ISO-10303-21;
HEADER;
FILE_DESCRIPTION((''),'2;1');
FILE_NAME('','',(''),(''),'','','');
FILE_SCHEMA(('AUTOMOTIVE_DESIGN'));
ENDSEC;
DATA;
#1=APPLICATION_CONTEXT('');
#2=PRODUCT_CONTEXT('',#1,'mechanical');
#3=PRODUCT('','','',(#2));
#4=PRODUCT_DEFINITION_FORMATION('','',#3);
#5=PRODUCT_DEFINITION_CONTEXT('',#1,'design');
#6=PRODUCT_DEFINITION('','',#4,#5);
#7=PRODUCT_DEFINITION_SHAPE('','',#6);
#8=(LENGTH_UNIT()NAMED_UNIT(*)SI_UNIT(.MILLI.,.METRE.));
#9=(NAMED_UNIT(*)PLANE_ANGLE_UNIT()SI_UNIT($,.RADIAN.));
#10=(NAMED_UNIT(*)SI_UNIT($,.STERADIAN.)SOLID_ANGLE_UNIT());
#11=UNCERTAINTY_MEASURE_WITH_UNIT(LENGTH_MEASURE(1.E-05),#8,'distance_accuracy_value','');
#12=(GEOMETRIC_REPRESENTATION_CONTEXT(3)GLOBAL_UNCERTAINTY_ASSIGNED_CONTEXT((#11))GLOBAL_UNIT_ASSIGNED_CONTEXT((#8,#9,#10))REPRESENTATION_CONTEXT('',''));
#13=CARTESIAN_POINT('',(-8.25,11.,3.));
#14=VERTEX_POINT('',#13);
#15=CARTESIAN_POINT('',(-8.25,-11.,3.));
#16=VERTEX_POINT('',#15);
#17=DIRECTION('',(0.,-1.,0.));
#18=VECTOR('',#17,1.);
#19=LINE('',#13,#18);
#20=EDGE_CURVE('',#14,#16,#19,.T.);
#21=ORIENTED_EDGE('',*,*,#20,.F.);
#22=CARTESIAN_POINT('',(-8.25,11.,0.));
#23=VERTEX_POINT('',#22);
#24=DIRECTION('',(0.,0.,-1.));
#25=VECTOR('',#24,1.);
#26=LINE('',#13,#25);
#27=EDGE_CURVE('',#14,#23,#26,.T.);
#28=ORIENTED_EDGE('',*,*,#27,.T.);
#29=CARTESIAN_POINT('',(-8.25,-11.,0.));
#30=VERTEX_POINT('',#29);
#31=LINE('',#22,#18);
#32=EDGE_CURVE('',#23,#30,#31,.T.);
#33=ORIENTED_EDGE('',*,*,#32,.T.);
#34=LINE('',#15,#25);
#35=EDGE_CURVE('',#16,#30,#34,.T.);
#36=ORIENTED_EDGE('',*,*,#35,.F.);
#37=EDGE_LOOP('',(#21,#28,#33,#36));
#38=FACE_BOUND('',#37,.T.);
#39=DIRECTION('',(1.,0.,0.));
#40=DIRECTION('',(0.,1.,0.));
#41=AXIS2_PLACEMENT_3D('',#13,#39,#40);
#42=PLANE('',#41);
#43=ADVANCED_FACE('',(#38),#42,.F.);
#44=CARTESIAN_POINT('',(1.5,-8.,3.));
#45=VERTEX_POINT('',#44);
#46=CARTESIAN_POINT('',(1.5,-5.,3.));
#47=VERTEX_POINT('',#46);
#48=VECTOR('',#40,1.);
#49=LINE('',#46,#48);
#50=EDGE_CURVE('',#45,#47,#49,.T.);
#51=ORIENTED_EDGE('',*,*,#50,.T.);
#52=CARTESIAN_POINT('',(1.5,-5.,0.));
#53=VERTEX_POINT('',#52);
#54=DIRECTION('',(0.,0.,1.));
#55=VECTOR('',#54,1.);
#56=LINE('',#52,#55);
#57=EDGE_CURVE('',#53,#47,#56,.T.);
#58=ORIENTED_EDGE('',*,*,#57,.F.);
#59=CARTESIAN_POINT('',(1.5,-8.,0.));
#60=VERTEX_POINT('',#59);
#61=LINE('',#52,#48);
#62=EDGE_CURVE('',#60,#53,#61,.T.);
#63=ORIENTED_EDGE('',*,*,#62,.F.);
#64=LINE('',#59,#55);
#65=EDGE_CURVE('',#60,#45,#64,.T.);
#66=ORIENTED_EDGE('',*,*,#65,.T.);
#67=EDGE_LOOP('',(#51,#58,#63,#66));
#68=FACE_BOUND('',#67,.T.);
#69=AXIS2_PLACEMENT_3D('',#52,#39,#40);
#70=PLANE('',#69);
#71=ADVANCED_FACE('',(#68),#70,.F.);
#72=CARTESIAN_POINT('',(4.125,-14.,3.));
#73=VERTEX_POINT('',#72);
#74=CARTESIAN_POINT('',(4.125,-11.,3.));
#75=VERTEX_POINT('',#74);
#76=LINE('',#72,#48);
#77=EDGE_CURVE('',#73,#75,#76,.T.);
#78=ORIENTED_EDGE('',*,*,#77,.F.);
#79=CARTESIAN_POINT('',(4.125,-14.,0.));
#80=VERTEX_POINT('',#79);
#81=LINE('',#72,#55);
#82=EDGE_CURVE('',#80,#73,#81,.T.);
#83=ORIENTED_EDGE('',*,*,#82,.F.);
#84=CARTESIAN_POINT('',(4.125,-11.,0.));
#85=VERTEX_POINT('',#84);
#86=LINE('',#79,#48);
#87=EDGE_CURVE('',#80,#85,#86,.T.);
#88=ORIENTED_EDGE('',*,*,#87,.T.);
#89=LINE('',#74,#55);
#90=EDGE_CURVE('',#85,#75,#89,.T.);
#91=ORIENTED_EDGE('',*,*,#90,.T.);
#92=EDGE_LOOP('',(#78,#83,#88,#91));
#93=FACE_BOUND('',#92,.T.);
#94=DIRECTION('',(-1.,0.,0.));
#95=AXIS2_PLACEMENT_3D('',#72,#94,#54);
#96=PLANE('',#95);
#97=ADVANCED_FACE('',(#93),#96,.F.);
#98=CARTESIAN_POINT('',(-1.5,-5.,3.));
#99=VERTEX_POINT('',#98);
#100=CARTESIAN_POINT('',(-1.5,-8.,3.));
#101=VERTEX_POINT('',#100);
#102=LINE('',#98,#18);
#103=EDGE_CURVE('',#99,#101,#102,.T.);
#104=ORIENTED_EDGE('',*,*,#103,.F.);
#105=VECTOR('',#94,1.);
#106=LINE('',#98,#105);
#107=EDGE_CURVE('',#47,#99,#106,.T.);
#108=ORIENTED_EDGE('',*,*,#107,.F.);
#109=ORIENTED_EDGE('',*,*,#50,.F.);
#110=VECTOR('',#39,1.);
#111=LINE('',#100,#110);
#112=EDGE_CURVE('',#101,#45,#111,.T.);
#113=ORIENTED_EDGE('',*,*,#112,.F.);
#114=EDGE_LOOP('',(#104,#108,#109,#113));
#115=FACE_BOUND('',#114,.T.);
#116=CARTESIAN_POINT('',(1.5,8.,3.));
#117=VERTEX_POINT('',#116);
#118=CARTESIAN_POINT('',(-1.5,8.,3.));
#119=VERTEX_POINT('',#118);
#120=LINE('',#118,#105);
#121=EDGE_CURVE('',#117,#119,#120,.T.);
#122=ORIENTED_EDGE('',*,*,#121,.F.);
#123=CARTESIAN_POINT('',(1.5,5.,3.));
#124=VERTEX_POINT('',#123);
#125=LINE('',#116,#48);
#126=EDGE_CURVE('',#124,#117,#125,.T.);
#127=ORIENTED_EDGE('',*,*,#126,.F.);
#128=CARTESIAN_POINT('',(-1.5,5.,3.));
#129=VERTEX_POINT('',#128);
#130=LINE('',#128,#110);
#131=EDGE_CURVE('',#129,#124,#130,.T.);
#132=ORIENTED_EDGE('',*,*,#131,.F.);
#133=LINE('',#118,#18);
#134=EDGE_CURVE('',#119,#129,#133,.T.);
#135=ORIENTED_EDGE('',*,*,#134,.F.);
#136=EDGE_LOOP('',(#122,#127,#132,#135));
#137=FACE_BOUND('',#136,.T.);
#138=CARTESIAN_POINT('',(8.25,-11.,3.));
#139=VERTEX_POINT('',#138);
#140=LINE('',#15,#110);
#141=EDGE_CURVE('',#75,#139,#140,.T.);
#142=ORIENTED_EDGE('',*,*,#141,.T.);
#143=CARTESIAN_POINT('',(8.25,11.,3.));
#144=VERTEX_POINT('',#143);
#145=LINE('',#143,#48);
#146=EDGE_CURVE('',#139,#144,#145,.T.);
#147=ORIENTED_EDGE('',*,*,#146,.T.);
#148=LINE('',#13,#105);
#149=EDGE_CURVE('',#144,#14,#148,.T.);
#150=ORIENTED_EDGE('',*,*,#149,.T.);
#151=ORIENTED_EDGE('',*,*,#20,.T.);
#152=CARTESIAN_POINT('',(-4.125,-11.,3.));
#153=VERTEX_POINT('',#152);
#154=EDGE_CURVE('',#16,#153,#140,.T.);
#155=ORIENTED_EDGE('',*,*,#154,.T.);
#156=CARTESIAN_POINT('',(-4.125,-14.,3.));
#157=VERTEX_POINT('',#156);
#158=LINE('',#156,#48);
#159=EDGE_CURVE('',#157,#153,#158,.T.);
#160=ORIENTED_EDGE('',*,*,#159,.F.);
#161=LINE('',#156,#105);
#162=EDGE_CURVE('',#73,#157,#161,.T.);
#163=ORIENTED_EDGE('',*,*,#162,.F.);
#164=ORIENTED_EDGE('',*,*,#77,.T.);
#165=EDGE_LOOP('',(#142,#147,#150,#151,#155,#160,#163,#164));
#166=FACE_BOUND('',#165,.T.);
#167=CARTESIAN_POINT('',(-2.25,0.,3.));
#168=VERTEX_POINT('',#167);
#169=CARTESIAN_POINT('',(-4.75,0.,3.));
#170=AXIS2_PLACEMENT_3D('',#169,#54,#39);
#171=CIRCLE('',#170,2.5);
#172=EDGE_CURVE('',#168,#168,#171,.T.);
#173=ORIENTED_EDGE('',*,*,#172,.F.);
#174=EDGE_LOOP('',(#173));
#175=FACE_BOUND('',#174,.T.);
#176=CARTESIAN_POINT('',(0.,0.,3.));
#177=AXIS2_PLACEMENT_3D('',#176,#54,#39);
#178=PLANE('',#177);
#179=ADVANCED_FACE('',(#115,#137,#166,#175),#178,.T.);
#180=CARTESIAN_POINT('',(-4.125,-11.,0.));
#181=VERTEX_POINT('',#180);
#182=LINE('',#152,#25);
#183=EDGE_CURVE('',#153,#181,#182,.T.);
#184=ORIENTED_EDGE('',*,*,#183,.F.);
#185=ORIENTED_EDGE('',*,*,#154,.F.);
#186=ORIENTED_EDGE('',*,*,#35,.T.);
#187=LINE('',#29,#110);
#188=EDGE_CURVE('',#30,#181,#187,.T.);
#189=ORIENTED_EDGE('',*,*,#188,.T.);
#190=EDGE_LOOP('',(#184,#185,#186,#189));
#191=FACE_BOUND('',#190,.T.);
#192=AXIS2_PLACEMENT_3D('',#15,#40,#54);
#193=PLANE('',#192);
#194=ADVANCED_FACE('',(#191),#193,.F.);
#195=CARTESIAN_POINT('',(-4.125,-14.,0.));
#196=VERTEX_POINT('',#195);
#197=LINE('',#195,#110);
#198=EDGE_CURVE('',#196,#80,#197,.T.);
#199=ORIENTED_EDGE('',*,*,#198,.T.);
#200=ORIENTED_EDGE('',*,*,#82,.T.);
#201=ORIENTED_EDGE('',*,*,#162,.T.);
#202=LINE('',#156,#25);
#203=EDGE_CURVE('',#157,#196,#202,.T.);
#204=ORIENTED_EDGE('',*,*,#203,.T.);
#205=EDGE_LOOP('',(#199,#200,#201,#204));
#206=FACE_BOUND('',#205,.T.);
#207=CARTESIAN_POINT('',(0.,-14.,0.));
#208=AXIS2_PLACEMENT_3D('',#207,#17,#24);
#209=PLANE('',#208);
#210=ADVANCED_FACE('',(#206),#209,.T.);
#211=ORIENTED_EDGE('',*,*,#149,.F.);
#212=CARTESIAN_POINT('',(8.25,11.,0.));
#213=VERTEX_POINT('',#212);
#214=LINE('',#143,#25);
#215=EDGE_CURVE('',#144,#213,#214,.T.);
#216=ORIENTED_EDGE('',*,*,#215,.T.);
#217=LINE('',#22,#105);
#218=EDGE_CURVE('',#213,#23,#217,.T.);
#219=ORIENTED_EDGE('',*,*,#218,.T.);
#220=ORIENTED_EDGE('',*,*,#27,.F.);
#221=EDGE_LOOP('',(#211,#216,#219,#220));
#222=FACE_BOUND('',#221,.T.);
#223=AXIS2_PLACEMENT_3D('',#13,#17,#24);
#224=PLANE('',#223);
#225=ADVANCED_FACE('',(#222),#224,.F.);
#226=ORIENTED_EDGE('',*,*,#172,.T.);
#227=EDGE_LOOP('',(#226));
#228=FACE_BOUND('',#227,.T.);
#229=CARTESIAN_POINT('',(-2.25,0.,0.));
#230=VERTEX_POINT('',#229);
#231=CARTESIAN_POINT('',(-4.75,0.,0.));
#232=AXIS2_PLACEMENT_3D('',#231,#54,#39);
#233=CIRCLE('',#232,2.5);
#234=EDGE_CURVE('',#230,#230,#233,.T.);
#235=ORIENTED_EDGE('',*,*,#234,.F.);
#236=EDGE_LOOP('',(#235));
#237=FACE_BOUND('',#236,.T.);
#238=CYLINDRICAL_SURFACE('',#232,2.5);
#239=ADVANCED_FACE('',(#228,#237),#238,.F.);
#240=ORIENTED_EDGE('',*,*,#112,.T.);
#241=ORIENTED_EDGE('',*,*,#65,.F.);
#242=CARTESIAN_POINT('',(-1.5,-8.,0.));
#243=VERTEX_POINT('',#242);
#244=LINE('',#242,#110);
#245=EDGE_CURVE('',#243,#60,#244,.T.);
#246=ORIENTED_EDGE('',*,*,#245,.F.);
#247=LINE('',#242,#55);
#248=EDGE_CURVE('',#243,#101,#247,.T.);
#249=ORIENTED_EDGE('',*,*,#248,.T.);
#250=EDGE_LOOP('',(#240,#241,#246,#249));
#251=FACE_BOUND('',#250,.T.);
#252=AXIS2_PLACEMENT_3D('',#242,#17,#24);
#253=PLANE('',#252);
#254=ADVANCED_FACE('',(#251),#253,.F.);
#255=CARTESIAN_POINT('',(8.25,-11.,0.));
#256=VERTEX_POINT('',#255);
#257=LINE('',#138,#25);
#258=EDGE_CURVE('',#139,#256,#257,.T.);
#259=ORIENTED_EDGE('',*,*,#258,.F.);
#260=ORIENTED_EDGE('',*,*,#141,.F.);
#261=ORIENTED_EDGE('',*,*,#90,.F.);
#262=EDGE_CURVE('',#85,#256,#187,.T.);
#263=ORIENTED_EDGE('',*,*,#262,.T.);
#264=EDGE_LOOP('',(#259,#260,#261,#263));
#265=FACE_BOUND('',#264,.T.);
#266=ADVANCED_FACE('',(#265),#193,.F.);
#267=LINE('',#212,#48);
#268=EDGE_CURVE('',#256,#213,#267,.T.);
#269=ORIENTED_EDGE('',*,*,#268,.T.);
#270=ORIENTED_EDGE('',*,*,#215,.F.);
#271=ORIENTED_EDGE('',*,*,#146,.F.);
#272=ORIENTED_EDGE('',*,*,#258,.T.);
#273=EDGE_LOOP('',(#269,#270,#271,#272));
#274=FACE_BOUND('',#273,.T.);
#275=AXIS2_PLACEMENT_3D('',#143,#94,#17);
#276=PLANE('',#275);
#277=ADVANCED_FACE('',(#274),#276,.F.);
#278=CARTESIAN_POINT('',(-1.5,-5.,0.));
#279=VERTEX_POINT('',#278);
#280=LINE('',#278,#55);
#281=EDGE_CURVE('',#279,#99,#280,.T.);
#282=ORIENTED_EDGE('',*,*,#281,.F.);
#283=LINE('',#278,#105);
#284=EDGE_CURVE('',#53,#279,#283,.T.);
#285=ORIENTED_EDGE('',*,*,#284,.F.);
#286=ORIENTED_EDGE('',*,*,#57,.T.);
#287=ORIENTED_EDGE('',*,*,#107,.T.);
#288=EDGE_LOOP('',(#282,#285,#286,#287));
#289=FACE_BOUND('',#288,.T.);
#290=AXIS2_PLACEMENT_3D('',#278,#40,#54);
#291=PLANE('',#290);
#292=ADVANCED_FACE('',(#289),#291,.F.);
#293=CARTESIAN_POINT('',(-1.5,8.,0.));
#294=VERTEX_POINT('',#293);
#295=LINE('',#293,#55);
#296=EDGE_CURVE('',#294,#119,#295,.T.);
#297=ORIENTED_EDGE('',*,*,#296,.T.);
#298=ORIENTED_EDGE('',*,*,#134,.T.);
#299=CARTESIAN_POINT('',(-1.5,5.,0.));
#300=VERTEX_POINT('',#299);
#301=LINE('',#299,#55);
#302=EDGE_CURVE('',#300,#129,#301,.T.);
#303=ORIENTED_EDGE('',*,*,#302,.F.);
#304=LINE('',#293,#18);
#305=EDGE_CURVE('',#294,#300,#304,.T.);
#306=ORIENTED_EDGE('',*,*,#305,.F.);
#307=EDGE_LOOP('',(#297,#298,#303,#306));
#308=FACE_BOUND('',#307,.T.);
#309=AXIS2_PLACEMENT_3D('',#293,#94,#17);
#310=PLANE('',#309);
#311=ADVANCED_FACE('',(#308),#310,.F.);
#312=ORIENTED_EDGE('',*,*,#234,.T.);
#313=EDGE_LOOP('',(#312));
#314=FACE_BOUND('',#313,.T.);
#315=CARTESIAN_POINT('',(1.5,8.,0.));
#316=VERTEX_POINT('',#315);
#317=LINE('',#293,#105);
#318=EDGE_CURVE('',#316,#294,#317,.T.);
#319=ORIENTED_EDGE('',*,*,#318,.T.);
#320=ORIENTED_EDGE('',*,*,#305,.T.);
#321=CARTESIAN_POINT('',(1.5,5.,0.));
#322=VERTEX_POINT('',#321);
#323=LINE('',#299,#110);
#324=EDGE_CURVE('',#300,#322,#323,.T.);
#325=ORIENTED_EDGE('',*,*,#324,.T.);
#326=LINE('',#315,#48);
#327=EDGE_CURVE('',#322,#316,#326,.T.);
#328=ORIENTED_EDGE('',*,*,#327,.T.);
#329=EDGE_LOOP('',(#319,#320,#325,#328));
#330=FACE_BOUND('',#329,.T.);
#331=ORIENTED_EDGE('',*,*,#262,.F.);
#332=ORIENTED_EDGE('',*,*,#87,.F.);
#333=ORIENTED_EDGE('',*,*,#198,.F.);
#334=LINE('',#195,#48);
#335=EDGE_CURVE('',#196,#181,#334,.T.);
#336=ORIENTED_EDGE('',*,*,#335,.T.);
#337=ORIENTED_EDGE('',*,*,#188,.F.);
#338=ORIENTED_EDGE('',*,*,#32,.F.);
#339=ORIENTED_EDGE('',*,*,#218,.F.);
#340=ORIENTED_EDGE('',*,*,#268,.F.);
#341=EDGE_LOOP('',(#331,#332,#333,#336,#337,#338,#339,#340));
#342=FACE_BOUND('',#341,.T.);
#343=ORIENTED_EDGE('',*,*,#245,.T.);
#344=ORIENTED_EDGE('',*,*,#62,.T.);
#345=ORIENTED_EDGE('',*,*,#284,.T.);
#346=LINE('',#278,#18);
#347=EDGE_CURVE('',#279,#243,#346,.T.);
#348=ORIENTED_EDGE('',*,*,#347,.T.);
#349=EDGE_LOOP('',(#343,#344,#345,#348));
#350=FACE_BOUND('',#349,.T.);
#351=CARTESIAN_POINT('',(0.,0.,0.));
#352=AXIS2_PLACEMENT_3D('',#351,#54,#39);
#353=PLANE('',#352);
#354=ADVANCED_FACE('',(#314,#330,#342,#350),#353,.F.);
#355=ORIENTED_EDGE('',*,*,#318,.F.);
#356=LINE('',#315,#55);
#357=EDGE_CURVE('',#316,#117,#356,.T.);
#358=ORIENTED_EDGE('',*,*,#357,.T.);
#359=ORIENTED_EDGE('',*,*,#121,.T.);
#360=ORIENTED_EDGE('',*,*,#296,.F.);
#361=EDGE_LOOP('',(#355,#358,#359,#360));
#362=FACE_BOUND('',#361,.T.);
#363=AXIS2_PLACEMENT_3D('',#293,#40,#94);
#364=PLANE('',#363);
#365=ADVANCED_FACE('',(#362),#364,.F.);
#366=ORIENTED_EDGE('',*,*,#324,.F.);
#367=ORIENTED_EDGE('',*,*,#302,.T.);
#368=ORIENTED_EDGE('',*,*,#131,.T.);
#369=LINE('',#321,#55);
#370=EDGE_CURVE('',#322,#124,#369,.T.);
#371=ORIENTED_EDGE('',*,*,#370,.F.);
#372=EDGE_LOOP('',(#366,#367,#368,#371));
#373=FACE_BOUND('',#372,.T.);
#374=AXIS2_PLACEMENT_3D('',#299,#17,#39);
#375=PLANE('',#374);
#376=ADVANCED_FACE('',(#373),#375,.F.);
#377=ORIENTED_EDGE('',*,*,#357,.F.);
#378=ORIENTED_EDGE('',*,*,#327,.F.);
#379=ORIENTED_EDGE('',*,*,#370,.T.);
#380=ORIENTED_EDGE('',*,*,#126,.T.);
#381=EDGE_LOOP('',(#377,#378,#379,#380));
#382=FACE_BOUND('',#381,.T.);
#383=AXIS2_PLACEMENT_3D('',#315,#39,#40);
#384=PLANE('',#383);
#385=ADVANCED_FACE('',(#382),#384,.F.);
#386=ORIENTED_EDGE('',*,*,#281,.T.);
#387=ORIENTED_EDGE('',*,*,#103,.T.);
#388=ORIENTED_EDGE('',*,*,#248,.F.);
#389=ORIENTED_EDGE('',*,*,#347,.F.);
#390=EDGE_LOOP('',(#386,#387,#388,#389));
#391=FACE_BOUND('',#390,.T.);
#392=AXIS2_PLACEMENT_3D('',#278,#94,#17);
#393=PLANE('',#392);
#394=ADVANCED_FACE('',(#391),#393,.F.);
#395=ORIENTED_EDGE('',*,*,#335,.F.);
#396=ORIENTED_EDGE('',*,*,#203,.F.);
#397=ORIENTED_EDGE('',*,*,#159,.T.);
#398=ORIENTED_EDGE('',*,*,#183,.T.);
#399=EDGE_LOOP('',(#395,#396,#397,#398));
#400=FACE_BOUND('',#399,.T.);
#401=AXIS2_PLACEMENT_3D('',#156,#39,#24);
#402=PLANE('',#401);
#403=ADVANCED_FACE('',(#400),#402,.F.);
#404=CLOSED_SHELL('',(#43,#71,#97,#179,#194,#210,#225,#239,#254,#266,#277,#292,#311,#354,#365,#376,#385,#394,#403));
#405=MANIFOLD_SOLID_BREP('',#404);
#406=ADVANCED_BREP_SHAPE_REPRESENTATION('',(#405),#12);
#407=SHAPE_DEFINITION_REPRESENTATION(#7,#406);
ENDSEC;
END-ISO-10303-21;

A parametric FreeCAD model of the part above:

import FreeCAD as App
import Part
import Sketcher
from FreeCAD import Vector
Q = App.Units.Quantity


def add_polygon(sketch, points):
    """Adds a closed chain of lines whose ends are joined by coincident constraints."""
    first, n = sketch.GeometryCount, len(points)
    for a, b in zip(points, points[1:] + points[:1]):
        sketch.addGeometry(Part.LineSegment(App.Vector(*a, 0), App.Vector(*b, 0)), False)
    for i in range(n):
        sketch.addConstraint(Sketcher.Constraint("Coincident", first + i, 2, first + (i + 1) % n, 1))

doc = App.newDocument("Part")
body = doc.addObject("PartDesign::Body", "Body")

# Sketch on XY plane
sketch1 = doc.addObject("Sketcher::SketchObject", "Sketch")
body.addObject(sketch1)
sketch1.AttachmentSupport = (doc.XY_Plane, [""])
sketch1.MapMode = "FlatFace"
add_polygon(sketch1, [(-8.25, 11), (-8.25, -11), (8.25, -11), (8.25, 11)])  # lines 0-3
sketch1.addConstraint([
    Sketcher.Constraint("Vertical", 0),
    Sketcher.Constraint("Horizontal", 1),
    Sketcher.Constraint("Vertical", 2),
    Sketcher.Constraint("Horizontal", 3),
    Sketcher.Constraint("Symmetric", 0, 2, 2, 2, -1, 1),
    Sketcher.Constraint("DistanceY", 0, 2, 0, 1, Q("22 mm")),
    Sketcher.Constraint("DistanceX", 1, 1, 1, 2, Q("16.5 mm")),
])
pad1 = doc.addObject("PartDesign::Pad", "Pad")
body.addObject(pad1)
pad1.Profile = sketch1
pad1.Length = 3

# Sketch on XZ plane
sketch2 = doc.addObject("Sketcher::SketchObject", "Sketch001")
body.addObject(sketch2)
sketch2.AttachmentSupport = (doc.XZ_Plane, [""])
sketch2.MapMode = "FlatFace"
sketch2.AttachmentOffset = App.Placement(Vector(0, 0, 11), App.Rotation())
add_polygon(sketch2, [(4.125, 0), (4.125, 3), (-4.125, 3), (-4.125, 0)])  # lines 0-3
sketch2.addConstraint([
    Sketcher.Constraint("Vertical", 0),
    Sketcher.Constraint("Horizontal", 1),
    Sketcher.Constraint("Vertical", 2),
    Sketcher.Constraint("Horizontal", 3),
    Sketcher.Constraint("Symmetric", 2, 2, 3, 2, -1, 1),
    Sketcher.Constraint("DistanceY", 0, 1, 0, 2, Q("3 mm")),
    Sketcher.Constraint("DistanceX", 1, 2, 1, 1, Q("8.25 mm")),
])
pad2 = doc.addObject("PartDesign::Pad", "Pad001")
body.addObject(pad2)
pad2.Profile = sketch2
pad2.Length = 3

# Sketch on XY plane
sketch3 = doc.addObject("Sketcher::SketchObject", "Sketch002")
body.addObject(sketch3)
sketch3.AttachmentSupport = (doc.XY_Plane, [""])
sketch3.MapMode = "FlatFace"
sketch3.AttachmentOffset = App.Placement(Vector(0, 0, 3), App.Rotation())
add_polygon(sketch3, [(-1.5, 8), (-1.5, 5), (1.5, 5), (1.5, 8)])  # lines 0-3
add_polygon(sketch3, [(-1.5, -5), (-1.5, -8), (1.5, -8), (1.5, -5)])  # lines 4-7
sketch3.addConstraint([
    Sketcher.Constraint("Vertical", 0),
    Sketcher.Constraint("Horizontal", 1),
    Sketcher.Constraint("Vertical", 2),
    Sketcher.Constraint("Horizontal", 3),
    Sketcher.Constraint("Vertical", 4),
    Sketcher.Constraint("Horizontal", 5),
    Sketcher.Constraint("Vertical", 6),
    Sketcher.Constraint("Horizontal", 7),
    Sketcher.Constraint("Symmetric", 2, 2, 4, 2, -1, 1),
    Sketcher.Constraint("Symmetric", 0, 2, 6, 2, -1, 1),
    Sketcher.Constraint("Vertical", 3, 2, 4, 2),
    Sketcher.Constraint("Equal", 7, 0),
    Sketcher.Constraint("DistanceX", 1, 1, 1, 2, Q("3 mm")),
    Sketcher.Constraint("DistanceY", -1, 1, 0, 2, Q("5 mm")),
])
pocket1 = doc.addObject("PartDesign::Pocket", "Pocket")
body.addObject(pocket1)
pocket1.Profile = sketch3
pocket1.Length = 3

# Sketch on XY plane
sketch4 = doc.addObject("Sketcher::SketchObject", "Sketch003")
body.addObject(sketch4)
sketch4.AttachmentSupport = (doc.XY_Plane, [""])
sketch4.MapMode = "FlatFace"
sketch4.AttachmentOffset = App.Placement(Vector(0, 0, 3), App.Rotation())
sketch4.addGeometry(Part.Circle(Vector(-4.75, 0, 0), Vector(0, 0, 1), 2.5), False)
sketch4.addConstraint([
    Sketcher.Constraint("PointOnObject", 0, 3, -1),
    Sketcher.Constraint("Diameter", 0, Q("5 mm")),
    Sketcher.Constraint("DistanceX", 0, 3, -1, 1, Q("4.75 mm")),
])
pocket2 = doc.addObject("PartDesign::Pocket", "Pocket001")
body.addObject(pocket2)
pocket2.Profile = sketch4
pocket2.Length = 3

doc.recompute()
